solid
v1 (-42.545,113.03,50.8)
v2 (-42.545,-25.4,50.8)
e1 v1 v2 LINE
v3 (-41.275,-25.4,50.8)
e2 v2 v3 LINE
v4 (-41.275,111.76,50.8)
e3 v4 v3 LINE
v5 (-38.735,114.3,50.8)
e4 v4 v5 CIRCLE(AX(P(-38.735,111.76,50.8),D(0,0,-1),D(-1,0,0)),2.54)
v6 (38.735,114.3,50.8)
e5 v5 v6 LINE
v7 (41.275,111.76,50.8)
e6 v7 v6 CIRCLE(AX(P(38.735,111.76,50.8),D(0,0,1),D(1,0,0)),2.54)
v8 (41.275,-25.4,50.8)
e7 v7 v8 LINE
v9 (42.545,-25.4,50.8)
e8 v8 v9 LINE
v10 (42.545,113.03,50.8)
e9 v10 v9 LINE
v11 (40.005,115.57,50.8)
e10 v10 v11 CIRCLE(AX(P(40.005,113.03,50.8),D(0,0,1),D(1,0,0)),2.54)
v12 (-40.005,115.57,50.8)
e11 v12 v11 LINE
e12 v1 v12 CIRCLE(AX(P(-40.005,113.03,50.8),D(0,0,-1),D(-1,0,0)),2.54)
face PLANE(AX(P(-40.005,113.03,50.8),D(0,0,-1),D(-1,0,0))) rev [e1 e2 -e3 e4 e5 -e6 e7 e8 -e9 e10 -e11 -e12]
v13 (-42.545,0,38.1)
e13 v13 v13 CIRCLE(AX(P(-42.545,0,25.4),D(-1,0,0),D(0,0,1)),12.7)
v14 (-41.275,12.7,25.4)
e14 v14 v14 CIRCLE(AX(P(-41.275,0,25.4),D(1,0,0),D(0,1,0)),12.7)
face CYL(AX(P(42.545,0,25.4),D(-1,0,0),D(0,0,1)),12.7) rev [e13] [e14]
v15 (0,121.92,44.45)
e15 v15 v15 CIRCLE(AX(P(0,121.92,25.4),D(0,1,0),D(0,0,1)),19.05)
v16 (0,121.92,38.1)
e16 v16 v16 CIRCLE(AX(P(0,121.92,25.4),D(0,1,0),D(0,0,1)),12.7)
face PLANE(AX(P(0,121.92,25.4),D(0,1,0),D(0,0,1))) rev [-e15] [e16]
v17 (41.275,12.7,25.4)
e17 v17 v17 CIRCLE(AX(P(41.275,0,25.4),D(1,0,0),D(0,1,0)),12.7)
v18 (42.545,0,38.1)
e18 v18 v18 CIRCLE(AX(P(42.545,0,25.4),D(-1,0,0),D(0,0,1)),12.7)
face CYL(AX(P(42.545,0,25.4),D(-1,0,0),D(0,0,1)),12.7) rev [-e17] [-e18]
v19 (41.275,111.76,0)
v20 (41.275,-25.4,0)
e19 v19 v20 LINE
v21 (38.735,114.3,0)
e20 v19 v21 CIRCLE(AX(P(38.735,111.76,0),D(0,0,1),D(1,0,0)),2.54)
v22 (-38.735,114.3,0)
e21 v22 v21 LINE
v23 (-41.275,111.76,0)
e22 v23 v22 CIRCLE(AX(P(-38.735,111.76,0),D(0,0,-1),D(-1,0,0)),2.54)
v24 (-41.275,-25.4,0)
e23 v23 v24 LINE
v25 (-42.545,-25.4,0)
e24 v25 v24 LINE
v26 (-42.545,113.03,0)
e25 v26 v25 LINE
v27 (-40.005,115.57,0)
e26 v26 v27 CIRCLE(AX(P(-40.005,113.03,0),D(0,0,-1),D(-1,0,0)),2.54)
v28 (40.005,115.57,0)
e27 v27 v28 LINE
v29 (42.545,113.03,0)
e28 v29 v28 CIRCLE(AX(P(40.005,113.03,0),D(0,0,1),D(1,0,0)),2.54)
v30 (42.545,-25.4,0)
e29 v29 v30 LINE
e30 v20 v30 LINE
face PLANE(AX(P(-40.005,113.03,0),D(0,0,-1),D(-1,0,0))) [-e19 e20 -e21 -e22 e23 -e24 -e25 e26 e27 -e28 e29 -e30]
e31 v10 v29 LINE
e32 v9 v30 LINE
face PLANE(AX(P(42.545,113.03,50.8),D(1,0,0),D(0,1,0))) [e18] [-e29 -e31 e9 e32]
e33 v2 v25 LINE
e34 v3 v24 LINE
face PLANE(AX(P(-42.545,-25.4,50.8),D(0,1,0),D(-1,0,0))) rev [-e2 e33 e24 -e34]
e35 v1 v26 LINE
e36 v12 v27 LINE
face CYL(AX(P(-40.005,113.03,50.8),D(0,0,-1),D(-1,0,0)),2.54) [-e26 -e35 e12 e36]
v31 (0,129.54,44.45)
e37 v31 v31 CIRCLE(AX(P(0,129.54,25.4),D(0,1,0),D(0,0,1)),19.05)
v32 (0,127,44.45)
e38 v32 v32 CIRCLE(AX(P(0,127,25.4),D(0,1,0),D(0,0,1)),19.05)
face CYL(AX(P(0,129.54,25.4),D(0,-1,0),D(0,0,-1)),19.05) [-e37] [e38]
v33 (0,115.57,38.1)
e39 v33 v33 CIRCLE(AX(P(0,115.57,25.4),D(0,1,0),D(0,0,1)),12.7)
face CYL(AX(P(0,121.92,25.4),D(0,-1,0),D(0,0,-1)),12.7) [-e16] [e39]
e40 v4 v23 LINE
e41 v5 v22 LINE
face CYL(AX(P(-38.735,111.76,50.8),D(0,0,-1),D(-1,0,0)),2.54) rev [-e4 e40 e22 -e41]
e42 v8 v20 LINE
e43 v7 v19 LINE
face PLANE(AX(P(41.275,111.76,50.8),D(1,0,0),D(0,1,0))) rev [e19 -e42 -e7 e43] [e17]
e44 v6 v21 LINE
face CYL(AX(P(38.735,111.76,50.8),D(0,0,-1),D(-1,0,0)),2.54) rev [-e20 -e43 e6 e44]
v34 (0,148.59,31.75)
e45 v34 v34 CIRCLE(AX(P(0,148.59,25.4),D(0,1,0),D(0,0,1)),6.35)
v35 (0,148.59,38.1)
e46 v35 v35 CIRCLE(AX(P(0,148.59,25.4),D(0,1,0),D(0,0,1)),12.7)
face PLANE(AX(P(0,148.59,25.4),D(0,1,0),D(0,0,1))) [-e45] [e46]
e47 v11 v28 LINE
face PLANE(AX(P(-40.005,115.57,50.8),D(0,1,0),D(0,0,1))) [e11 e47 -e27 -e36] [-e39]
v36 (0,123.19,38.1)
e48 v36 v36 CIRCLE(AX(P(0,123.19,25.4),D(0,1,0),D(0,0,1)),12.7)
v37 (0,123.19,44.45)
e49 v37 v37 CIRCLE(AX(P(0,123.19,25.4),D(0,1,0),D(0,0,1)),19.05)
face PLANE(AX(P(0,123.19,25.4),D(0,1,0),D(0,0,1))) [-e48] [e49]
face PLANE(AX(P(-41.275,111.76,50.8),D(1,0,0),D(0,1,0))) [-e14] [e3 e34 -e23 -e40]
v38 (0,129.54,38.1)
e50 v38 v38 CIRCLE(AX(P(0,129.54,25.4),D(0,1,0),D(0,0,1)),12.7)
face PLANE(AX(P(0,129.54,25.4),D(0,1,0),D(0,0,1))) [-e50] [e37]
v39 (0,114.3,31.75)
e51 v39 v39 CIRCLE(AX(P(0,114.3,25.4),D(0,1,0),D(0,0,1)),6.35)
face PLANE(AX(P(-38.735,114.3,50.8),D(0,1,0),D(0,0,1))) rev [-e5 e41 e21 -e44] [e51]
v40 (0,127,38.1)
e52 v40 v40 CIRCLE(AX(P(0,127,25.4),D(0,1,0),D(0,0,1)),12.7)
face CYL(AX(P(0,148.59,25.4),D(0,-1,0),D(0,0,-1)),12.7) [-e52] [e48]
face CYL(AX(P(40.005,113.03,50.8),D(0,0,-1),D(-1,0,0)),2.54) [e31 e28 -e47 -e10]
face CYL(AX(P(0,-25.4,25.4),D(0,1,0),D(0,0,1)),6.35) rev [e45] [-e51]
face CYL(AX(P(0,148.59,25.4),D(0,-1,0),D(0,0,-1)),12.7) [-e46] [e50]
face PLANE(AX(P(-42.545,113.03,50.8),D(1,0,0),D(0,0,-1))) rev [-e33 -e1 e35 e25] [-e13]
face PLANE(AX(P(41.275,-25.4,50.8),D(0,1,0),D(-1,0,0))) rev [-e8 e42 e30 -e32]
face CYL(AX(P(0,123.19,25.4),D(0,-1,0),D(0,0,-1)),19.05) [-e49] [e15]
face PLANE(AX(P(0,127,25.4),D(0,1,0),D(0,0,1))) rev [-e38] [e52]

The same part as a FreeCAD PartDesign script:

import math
import FreeCAD as App
import Part
import Sketcher

V = App.Vector
Q = App.Units.Quantity

doc = App.newDocument("Part")
body = doc.addObject("PartDesign::Body", "Body")

# Sketch on XY plane
sketch1 = body.newObject("Sketcher::SketchObject", "Sketch")
sketch1.AttachmentSupport = (doc.getObject("XY_Plane"), [""])
sketch1.MapMode = "FlatFace"
sketch1.addGeometry(Part.LineSegment(V(42.5, -25.4, 0), V(42.5, 113, 0)), False)
sketch1.addGeometry(Part.ArcOfCircle(Part.Circle(V(40, 113, 0), V(0, 0, 1), 2.5), math.radians(0), math.radians(90)), False)
sketch1.addGeometry(Part.LineSegment(V(40, 115.6, 0), V(-40, 115.6, 0)), False)
sketch1.addGeometry(Part.ArcOfCircle(Part.Circle(V(-40, 113, 0), V(0, 0, 1), 2.5), math.radians(90), math.radians(180)), False)
sketch1.addGeometry(Part.LineSegment(V(-42.5, 113, 0), V(-42.5, -25.4, 0)), False)
sketch1.addGeometry(Part.LineSegment(V(-42.5, -25.4, 0), V(-41.3, -25.4, 0)), False)
sketch1.addGeometry(Part.LineSegment(V(-41.3, -25.4, 0), V(-41.3, 111.8, 0)), False)
sketch1.addGeometry(Part.ArcOfCircle(Part.Circle(V(-38.7, 111.8, 0), V(0, 0, 1), 2.5), math.radians(90), math.radians(180)), False)
sketch1.addGeometry(Part.LineSegment(V(-38.7, 114.3, 0), V(38.7, 114.3, 0)), False)
sketch1.addGeometry(Part.ArcOfCircle(Part.Circle(V(38.7, 111.8, 0), V(0, 0, 1), 2.5), math.radians(0), math.radians(90)), False)
sketch1.addGeometry(Part.LineSegment(V(41.3, 111.8, 0), V(41.3, -25.4, 0)), False)
sketch1.addGeometry(Part.LineSegment(V(41.3, -25.4, 0), V(42.5, -25.4, 0)), False)
sketch1.addConstraint(Sketcher.Constraint("Tangent", 0, 2, 1, 1))
sketch1.addConstraint(Sketcher.Constraint("Tangent", 1, 2, 2, 1))
sketch1.addConstraint(Sketcher.Constraint("Tangent", 2, 2, 3, 1))
sketch1.addConstraint(Sketcher.Constraint("Tangent", 3, 2, 4, 1))
sketch1.addConstraint(Sketcher.Constraint("Coincident", 4, 2, 5, 1))
sketch1.addConstraint(Sketcher.Constraint("Coincident", 5, 2, 6, 1))
sketch1.addConstraint(Sketcher.Constraint("Tangent", 6, 2, 7, 2))
sketch1.addConstraint(Sketcher.Constraint("Tangent", 7, 1, 8, 1))
sketch1.addConstraint(Sketcher.Constraint("Tangent", 8, 2, 9, 2))
sketch1.addConstraint(Sketcher.Constraint("Tangent", 9, 1, 10, 1))
sketch1.addConstraint(Sketcher.Constraint("Coincident", 10, 2, 11, 1))
sketch1.addConstraint(Sketcher.Constraint("Coincident", 11, 2, 0, 1))
sketch1.addConstraint(Sketcher.Constraint("Vertical", 0))
sketch1.addConstraint(Sketcher.Constraint("Horizontal", 2))
sketch1.addConstraint(Sketcher.Constraint("Vertical", 4))
sketch1.addConstraint(Sketcher.Constraint("Horizontal", 5))
sketch1.addConstraint(Sketcher.Constraint("Vertical", 6))
sketch1.addConstraint(Sketcher.Constraint("Horizontal", 8))
sketch1.addConstraint(Sketcher.Constraint("Vertical", 10))
sketch1.addConstraint(Sketcher.Constraint("Horizontal", 11))
sketch1.addConstraint(Sketcher.Constraint("Equal", 1, 3))
sketch1.addConstraint(Sketcher.Constraint("Equal", 3, 7))
sketch1.addConstraint(Sketcher.Constraint("Equal", 7, 9))
sketch1.addConstraint(Sketcher.Constraint("Symmetric", 5, 2, 10, 2, -2))
sketch1.addConstraint(Sketcher.Constraint("Equal", 5, 11))
sketch1.addConstraint(Sketcher.Constraint("Radius", 1, Q("0.1 in")))
sketch1.addConstraint(Sketcher.Constraint("DistanceY", 6, 1, 6, 2, Q("5.4 in")))
sketch1.addConstraint(Sketcher.Constraint("DistanceY", 4, 2, -1, 1, Q("1 in")))
sketch1.addConstraint(Sketcher.Constraint("DistanceX", 2, 2, 2, 1, Q("3.15 in")))
sketch1.addConstraint(Sketcher.Constraint("DistanceX", 5, 1, 5, 2, Q("0.05 in")))
sketch1.addConstraint(Sketcher.Constraint("DistanceY", 0, 1, 0, 2, Q("5.45 in")))
pad1 = body.newObject("PartDesign::Pad", "Pad")
pad1.Profile = sketch1
pad1.Length = Q("2 in")

# Sketch on YZ plane
sketch2 = body.newObject("Sketcher::SketchObject", "Sketch001")
sketch2.AttachmentSupport = (doc.getObject("YZ_Plane"), [""])
sketch2.MapMode = "FlatFace"
sketch2.AttachmentOffset = App.Placement(V(0, 0, -1.675 * 25.4), App.Rotation())
sketch2.addGeometry(Part.Circle(V(0, 25, 0), V(0, 0, 1), 13), False)
sketch2.addConstraint(Sketcher.Constraint("PointOnObject", 0, 3, -2))
sketch2.addConstraint(Sketcher.Constraint("Diameter", 0, Q("1 in")))
sketch2.addConstraint(Sketcher.Constraint("DistanceY", -1, 1, 0, 3, Q("1 in")))
pocket1 = body.newObject("PartDesign::Pocket", "Pocket")
pocket1.Profile = sketch2
pocket1.Type = "ThroughAll"
pocket1.Reversed = True

# Sketch on XZ plane
sketch3 = body.newObject("Sketcher::SketchObject", "Sketch002")
sketch3.AttachmentSupport = (doc.getObject("XZ_Plane"), [""])
sketch3.MapMode = "FlatFace"
sketch3.AttachmentOffset = App.Placement(V(0, 0, -4.55 * 25.4), App.Rotation())
sketch3.addGeometry(Part.Circle(V(0, 25, 0), V(0, 0, 1), 13), False)
sketch3.addConstraint(Sketcher.Constraint("PointOnObject", 0, 3, -2))
sketch3.addConstraint(Sketcher.Constraint("Diameter", 0, Q("1 in")))
sketch3.addConstraint(Sketcher.Constraint("DistanceY", -1, 1, 0, 3, Q("1 in")))
pad2 = body.newObject("PartDesign::Pad", "Pad001")
pad2.Profile = sketch3
pad2.Length = Q("0.25 in")
pad2.Reversed = True

# Sketch on XZ plane
sketch4 = body.newObject("Sketcher::SketchObject", "Sketch003")
sketch4.AttachmentSupport = (doc.getObject("XZ_Plane"), [""])
sketch4.MapMode = "FlatFace"
sketch4.AttachmentOffset = App.Placement(V(0, 0, -4.8 * 25.4), App.Rotation())
sketch4.addGeometry(Part.Circle(V(0, 25, 0), V(0, 0, 1), 19), False)
sketch4.addConstraint(Sketcher.Constraint("PointOnObject", 0, 3, -2))
sketch4.addConstraint(Sketcher.Constraint("Diameter", 0, Q("1.5 in")))
sketch4.addConstraint(Sketcher.Constraint("DistanceY", -1, 1, 0, 3, Q("1 in")))
pad3 = body.newObject("PartDesign::Pad", "Pad002")
pad3.Profile = sketch4
pad3.Length = Q("0.05 in")
pad3.Reversed = True

# Sketch on XZ plane
sketch5 = body.newObject("Sketcher::SketchObject", "Sketch004")
sketch5.AttachmentSupport = (doc.getObject("XZ_Plane"), [""])
sketch5.MapMode = "FlatFace"
sketch5.AttachmentOffset = App.Placement(V(0, 0, -4.85 * 25.4), App.Rotation())
sketch5.addGeometry(Part.Circle(V(0, 25, 0), V(0, 0, 1), 13), False)
sketch5.addConstraint(Sketcher.Constraint("PointOnObject", 0, 3, -2))
sketch5.addConstraint(Sketcher.Constraint("Diameter", 0, Q("1 in")))
sketch5.addConstraint(Sketcher.Constraint("DistanceY", -1, 1, 0, 3, Q("1 in")))
pad4 = body.newObject("PartDesign::Pad", "Pad003")
pad4.Profile = sketch5
pad4.Length = Q("1 in")
pad4.Reversed = True

# Sketch on XZ plane
sketch6 = body.newObject("Sketcher::SketchObject", "Sketch005")
sketch6.AttachmentSupport = (doc.getObject("XZ_Plane"), [""])
sketch6.MapMode = "FlatFace"
sketch6.AttachmentOffset = App.Placement(V(0, 0, -5.85 * 25.4), App.Rotation())
sketch6.addGeometry(Part.Circle(V(0, 25, 0), V(0, 0, 1), 6), False)
sketch6.addConstraint(Sketcher.Constraint("PointOnObject", 0, 3, -2))
sketch6.addConstraint(Sketcher.Constraint("Diameter", 0, Q("0.5 in")))
sketch6.addConstraint(Sketcher.Constraint("DistanceY", -1, 1, 0, 3, Q("1 in")))
pocket2 = body.newObject("PartDesign::Pocket", "Pocket001")
pocket2.Profile = sketch6
pocket2.Type = "ThroughAll"
pocket2.Reversed = True

# Sketch on XZ plane
sketch7 = body.newObject("Sketcher::SketchObject", "Sketch006")
sketch7.AttachmentSupport = (doc.getObject("XZ_Plane"), [""])
sketch7.MapMode = "FlatFace"
sketch7.AttachmentOffset = App.Placement(V(0, 0, -5 * 25.4), App.Rotation())
sketch7.addGeometry(Part.Circle(V(0, 25, 0), V(0, 0, 1), 19), False)
sketch7.addGeometry(Part.Circle(V(0, 25, 0), V(0, 0, 1), 13), False)
sketch7.addConstraint(Sketcher.Constraint("Coincident", 1, 3, 0, 3))
sketch7.addConstraint(Sketcher.Constraint("PointOnObject", 0, 3, -2))
sketch7.addConstraint(Sketcher.Constraint("Diameter", 1, Q("1 in")))
sketch7.addConstraint(Sketcher.Constraint("Diameter", 0, Q("1.5 in")))
sketch7.addConstraint(Sketcher.Constraint("DistanceY", -1, 1, 0, 3, Q("1 in")))
pad5 = body.newObject("PartDesign::Pad", "Pad004")
pad5.Profile = sketch7
pad5.Length = Q("0.1 in")
pad5.Reversed = True

doc.recompute()
